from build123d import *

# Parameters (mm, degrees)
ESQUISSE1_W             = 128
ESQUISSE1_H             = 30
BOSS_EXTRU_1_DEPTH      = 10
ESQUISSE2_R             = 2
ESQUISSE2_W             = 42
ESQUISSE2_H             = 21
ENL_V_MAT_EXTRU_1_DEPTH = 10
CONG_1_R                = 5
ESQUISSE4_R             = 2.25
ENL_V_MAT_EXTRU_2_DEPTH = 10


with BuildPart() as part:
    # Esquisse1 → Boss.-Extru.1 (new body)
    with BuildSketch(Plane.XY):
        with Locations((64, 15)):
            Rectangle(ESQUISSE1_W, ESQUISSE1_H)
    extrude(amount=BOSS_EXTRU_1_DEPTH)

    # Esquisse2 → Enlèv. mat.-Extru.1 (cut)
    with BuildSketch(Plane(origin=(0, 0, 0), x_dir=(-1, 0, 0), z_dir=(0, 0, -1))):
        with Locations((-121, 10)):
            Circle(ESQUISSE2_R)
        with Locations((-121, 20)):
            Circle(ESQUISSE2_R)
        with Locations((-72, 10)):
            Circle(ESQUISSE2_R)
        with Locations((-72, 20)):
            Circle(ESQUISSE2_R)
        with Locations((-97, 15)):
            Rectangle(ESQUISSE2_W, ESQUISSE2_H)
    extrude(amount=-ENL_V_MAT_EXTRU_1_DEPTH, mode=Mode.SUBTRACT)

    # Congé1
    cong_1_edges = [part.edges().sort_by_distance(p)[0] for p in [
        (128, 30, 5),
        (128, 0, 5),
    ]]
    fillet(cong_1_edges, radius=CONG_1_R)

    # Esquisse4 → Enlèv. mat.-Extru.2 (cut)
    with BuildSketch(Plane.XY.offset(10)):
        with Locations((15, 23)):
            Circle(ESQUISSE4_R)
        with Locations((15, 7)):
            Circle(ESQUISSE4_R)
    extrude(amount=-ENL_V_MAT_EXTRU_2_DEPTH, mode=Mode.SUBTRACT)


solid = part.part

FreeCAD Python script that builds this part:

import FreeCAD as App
import Part
import Sketcher
from FreeCAD import Vector
Q = App.Units.Quantity


def edges_at(feature, points):
    """Names of the edges that pass closest to the given points."""
    edges = feature.Shape.Edges
    near = lambda p: min(range(len(edges)), key=lambda i: edges[i].distToShape(Part.Vertex(*p))[0])
    return sorted({f"Edge{near(p) + 1}" for p in points})


def add_polygon(sketch, points):
    """Adds a closed chain of lines whose ends are joined by coincident constraints."""
    first, n = sketch.GeometryCount, len(points)
    for a, b in zip(points, points[1:] + points[:1]):
        sketch.addGeometry(Part.LineSegment(App.Vector(*a, 0), App.Vector(*b, 0)), False)
    for i in range(n):
        sketch.addConstraint(Sketcher.Constraint("Coincident", first + i, 2, first + (i + 1) % n, 1))

doc = App.newDocument("Part")
body = doc.addObject("PartDesign::Body", "Body")

# Sketch on XY plane
sketch1 = body.newObject("Sketcher::SketchObject", "Sketch")
sketch1.AttachmentSupport = (doc.getObject("XY_Plane"), [""])
sketch1.MapMode = "FlatFace"
add_polygon(sketch1, [(0, 30), (0, 0), (128, 0), (128, 30)])  # lines 0-3
sketch1.addConstraint([
    Sketcher.Constraint("Vertical", 0),
    Sketcher.Constraint("Horizontal", 1),
    Sketcher.Constraint("Vertical", 2),
    Sketcher.Constraint("Horizontal", 3),
    Sketcher.Constraint("Coincident", 0, 2, -1, 1),
    Sketcher.Constraint("DistanceX", 1, 1, 1, 2, Q("128 mm")),
    Sketcher.Constraint("DistanceY", 0, 2, 0, 1, Q("30 mm")),
])
pad1 = body.newObject("PartDesign::Pad", "Pad")
pad1.Profile = sketch1
pad1.Length = 10

# Sketch on XY plane
sketch2 = body.newObject("Sketcher::SketchObject", "Sketch001")
sketch2.AttachmentSupport = (doc.getObject("XY_Plane"), [""])
sketch2.MapMode = "FlatFace"
sketch2.addGeometry(Part.Circle(Vector(121, 10, 0), Vector(0, 0, 1), 2), False)  # 0
sketch2.addGeometry(Part.Circle(Vector(121, 20, 0), Vector(0, 0, 1), 2), False)  # 1
sketch2.addGeometry(Part.Circle(Vector(72, 10, 0), Vector(0, 0, 1), 2), False)  # 2
sketch2.addGeometry(Part.Circle(Vector(72, 20, 0), Vector(0, 0, 1), 2), False)  # 3
add_polygon(sketch2, [(118, 25.5), (118, 4.5), (76, 4.5), (76, 25.5)])  # lines 4-7
sketch2.addConstraint([
    Sketcher.Constraint("Vertical", 4),
    Sketcher.Constraint("Horizontal", 5),
    Sketcher.Constraint("Vertical", 6),
    Sketcher.Constraint("Horizontal", 7),
    Sketcher.Constraint("Equal", 0, 1),
    Sketcher.Constraint("Equal", 1, 2),
    Sketcher.Constraint("Equal", 2, 3),
    Sketcher.Constraint("Horizontal", 0, 3, 2, 3),
    Sketcher.Constraint("Horizontal", 1, 3, 3, 3),
    Sketcher.Constraint("Vertical", 0, 3, 1, 3),
    Sketcher.Constraint("Vertical", 2, 3, 3, 3),
    Sketcher.Constraint("Diameter", 0, Q("4 mm")),
    Sketcher.Constraint("DistanceX", 5, 2, 5, 1, Q("42 mm")),
    Sketcher.Constraint("DistanceY", 4, 2, 4, 1, Q("21 mm")),
    Sketcher.Constraint("DistanceX", -1, 1, 0, 3, Q("121 mm")),
    Sketcher.Constraint("DistanceY", -1, 1, 0, 3, Q("10 mm")),
    Sketcher.Constraint("DistanceY", -1, 1, 1, 3, Q("20 mm")),
    Sketcher.Constraint("DistanceX", -1, 1, 2, 3, Q("72 mm")),
    Sketcher.Constraint("DistanceX", -1, 1, 4, 2, Q("118 mm")),
    Sketcher.Constraint("DistanceY", -1, 1, 4, 2, Q("4.5 mm")),
])
pocket1 = body.newObject("PartDesign::Pocket", "Pocket")
pocket1.Profile = sketch2
pocket1.Length = 10
pocket1.Reversed = True
doc.recompute()

fillet = body.newObject("PartDesign::Fillet", "Fillet")
fillet.Base = (pocket1, edges_at(pocket1, [(128, 30, 5), (128, 0, 5)]))
fillet.Radius = 5

# Sketch on XY plane
sketch3 = body.newObject("Sketcher::SketchObject", "Sketch002")
sketch3.AttachmentSupport = (doc.getObject("XY_Plane"), [""])
sketch3.MapMode = "FlatFace"
sketch3.AttachmentOffset = App.Placement(Vector(0, 0, 10), App.Rotation())
sketch3.addGeometry([
    Part.Circle(Vector(15, 23, 0), Vector(0, 0, 1), 2.25),
    Part.Circle(Vector(15, 7, 0), Vector(0, 0, 1), 2.25),
], False)
sketch3.addConstraint([
    Sketcher.Constraint("Equal", 0, 1),
    Sketcher.Constraint("Vertical", 0, 3, 1, 3),
    Sketcher.Constraint("Diameter", 0, Q("4.5 mm")),
    Sketcher.Constraint("DistanceX", -1, 1, 0, 3, Q("15 mm")),
    Sketcher.Constraint("DistanceY", -1, 1, 0, 3, Q("23 mm")),
    Sketcher.Constraint("DistanceY", -1, 1, 1, 3, Q("7 mm")),
])
pocket2 = body.newObject("PartDesign::Pocket", "Pocket001")
pocket2.Profile = sketch3
pocket2.Length = 10

doc.recompute()
